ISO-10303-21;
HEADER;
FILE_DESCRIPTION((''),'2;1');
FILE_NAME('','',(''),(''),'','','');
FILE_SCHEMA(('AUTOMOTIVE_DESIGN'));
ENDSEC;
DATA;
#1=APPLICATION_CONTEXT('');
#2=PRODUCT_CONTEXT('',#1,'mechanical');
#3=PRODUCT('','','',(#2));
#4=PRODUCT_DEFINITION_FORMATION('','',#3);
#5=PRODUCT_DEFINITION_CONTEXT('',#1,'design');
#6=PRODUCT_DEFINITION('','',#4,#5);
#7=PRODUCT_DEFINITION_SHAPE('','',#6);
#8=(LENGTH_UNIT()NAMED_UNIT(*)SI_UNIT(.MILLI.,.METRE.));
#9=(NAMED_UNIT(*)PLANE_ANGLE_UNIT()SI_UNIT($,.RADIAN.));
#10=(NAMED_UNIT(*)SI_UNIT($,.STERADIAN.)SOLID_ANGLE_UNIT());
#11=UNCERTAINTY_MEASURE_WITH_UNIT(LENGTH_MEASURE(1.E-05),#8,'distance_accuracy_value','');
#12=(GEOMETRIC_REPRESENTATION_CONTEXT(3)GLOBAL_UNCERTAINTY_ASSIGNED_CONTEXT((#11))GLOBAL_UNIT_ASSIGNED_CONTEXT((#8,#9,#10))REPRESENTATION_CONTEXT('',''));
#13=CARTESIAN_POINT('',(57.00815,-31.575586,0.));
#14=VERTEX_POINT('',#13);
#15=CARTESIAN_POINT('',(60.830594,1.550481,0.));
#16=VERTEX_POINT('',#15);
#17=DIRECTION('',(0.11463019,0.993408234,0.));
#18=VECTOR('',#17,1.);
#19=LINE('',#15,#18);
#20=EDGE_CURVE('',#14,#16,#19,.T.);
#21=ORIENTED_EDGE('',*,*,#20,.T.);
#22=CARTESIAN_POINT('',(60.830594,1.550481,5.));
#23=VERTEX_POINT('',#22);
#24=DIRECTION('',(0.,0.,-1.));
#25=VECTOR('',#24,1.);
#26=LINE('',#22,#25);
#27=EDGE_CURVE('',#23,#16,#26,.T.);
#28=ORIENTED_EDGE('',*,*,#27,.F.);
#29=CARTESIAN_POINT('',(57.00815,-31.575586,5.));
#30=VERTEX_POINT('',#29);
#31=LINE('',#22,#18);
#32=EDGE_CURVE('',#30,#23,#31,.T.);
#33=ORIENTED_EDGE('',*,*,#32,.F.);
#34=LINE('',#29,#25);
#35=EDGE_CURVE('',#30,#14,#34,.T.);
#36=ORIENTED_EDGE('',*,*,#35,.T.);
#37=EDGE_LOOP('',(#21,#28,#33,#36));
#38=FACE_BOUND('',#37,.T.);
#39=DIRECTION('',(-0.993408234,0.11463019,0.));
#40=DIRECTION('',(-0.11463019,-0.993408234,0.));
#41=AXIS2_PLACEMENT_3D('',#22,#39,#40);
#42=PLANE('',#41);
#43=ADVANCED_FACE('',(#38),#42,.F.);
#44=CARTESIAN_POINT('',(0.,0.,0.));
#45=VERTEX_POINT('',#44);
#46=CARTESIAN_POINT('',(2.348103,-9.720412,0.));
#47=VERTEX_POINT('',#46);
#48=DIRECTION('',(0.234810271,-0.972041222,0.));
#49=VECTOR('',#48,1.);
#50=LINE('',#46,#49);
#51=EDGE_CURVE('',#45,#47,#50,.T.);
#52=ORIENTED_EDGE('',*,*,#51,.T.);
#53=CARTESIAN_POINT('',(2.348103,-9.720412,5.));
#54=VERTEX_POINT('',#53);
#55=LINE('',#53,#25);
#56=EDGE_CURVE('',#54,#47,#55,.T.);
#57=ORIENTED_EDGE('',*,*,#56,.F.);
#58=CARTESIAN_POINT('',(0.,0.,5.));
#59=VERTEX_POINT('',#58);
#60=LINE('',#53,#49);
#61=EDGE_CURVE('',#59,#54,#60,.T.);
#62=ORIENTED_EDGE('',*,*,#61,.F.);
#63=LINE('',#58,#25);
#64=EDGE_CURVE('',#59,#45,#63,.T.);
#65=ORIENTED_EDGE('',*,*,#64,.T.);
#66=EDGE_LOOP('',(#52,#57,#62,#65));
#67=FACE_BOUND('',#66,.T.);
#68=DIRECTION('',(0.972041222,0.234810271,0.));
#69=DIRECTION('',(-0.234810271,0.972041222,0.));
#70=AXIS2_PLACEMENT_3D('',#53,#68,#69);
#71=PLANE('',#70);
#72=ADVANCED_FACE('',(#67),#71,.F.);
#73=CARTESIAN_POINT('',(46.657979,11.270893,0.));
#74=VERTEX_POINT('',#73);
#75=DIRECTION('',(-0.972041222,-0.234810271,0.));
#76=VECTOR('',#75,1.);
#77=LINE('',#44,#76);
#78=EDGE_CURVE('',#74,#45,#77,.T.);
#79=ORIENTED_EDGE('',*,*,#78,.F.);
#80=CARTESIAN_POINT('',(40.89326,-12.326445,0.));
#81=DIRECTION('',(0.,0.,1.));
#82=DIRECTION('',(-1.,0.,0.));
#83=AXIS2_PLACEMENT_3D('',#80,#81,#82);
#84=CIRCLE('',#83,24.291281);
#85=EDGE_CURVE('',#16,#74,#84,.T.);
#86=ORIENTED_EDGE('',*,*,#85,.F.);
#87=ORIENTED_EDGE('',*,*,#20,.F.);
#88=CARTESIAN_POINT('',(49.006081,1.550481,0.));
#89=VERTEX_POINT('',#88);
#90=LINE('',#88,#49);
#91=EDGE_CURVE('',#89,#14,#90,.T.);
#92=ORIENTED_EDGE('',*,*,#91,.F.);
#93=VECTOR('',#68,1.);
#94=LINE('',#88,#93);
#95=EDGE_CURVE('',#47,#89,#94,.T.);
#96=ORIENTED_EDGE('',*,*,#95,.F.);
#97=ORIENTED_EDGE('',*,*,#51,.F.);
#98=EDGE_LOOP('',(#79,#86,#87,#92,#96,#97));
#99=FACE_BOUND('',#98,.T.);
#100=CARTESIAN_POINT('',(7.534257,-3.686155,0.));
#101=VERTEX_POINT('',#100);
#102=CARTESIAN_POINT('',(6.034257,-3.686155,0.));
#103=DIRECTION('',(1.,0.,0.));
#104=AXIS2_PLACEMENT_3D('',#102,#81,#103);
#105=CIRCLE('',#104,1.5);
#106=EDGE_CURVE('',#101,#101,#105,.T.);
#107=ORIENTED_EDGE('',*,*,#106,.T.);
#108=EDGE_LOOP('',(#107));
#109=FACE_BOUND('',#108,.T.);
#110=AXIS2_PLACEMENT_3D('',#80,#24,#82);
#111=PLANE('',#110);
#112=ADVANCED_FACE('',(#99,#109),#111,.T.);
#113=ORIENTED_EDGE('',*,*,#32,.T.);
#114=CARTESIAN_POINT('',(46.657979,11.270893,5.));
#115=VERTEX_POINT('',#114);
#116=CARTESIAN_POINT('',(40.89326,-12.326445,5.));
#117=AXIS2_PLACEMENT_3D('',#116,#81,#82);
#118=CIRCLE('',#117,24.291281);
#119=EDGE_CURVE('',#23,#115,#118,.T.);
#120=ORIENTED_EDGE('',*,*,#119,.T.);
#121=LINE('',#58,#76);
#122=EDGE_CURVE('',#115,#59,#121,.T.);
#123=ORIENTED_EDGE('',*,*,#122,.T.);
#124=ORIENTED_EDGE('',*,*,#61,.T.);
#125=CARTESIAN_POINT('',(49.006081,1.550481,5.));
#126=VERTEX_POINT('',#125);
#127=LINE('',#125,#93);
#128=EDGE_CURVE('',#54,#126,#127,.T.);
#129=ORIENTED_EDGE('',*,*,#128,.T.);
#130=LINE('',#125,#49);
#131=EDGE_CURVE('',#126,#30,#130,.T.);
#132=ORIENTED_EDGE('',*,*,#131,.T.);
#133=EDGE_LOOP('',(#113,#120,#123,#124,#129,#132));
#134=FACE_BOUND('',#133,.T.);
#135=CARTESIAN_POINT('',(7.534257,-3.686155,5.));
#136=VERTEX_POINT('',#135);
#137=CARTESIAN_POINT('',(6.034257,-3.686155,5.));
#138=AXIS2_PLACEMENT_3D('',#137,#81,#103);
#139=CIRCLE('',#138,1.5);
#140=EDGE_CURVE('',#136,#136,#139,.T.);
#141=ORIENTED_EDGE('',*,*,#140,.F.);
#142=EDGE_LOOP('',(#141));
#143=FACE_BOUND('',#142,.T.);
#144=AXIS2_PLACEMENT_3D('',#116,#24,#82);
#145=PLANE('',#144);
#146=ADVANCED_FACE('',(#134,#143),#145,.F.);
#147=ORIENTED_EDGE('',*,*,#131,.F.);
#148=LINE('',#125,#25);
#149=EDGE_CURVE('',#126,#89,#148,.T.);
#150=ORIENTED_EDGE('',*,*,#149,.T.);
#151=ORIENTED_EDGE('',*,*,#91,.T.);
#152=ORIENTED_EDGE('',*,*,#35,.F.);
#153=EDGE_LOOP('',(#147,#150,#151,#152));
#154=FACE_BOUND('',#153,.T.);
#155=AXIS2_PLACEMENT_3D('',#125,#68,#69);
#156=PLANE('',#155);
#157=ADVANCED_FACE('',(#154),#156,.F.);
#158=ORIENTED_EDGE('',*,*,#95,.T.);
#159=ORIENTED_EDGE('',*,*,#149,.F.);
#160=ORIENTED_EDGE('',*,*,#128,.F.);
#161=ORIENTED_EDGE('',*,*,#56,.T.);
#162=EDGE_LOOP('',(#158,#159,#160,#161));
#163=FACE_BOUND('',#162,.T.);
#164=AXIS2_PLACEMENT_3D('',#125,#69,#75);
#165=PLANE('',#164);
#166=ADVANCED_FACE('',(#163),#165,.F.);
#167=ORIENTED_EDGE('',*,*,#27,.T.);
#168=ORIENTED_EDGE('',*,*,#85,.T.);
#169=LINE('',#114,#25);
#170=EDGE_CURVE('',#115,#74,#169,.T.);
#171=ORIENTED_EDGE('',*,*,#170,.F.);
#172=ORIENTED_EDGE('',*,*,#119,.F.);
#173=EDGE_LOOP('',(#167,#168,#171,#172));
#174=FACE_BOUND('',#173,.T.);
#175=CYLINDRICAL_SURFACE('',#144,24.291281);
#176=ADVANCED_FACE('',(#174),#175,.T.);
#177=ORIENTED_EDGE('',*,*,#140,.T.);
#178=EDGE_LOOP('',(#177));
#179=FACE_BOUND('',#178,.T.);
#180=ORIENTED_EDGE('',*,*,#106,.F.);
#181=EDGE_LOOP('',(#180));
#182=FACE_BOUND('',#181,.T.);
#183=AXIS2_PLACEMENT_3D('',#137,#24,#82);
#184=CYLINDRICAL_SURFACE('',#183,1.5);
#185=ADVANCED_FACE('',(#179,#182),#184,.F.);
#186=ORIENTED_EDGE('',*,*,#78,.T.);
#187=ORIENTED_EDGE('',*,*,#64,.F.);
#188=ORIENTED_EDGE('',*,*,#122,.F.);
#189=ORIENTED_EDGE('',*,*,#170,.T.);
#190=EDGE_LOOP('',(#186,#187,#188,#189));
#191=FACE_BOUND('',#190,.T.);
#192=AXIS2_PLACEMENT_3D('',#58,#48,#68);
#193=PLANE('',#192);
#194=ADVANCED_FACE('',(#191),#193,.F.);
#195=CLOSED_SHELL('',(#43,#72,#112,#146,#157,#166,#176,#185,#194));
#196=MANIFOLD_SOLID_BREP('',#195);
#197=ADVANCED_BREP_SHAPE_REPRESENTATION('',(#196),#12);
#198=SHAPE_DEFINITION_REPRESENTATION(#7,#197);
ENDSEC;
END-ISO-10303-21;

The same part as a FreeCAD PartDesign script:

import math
import FreeCAD as App
import Part
import Sketcher
from FreeCAD import Vector

doc = App.newDocument("Part")
body = doc.addObject("PartDesign::Body", "Body")

sketch1 = body.newObject("Sketcher::SketchObject", "Sketch")
sketch1.AttachmentSupport = (doc.getObject("XY_Plane"), [""])
sketch1.MapMode = "FlatFace"
sketch1.addGeometry([
    Part.LineSegment(Vector(57.00815, -31.575586, 0), Vector(60.830594, 1.550481, 0)),
    Part.ArcOfCircle(Part.Circle(Vector(40.89326, -12.326445, 0), Vector(0, 0, 1), 24.291281), math.radians(34.838966), math.radians(76.271797)),
    Part.LineSegment(Vector(46.657979, 11.270893, 0), Vector(0, 0, 0)),
    Part.LineSegment(Vector(0, 0, 0), Vector(2.348103, -9.720412, 0)),
    Part.LineSegment(Vector(2.348103, -9.720412, 0), Vector(49.006081, 1.550481, 0)),
    Part.LineSegment(Vector(49.006081, 1.550481, 0), Vector(57.00815, -31.575586, 0)),
    Part.Circle(Vector(6.034257, -3.686155, 0), Vector(0, 0, 1), 1.5),
], False)
sketch1.addConstraint([
    Sketcher.Constraint("Coincident", 0, 2, 1, 1),
    Sketcher.Constraint("Coincident", 1, 2, 2, 1),
    Sketcher.Constraint("Coincident", 2, 2, 3, 1),
    Sketcher.Constraint("Coincident", 3, 2, 4, 1),
    Sketcher.Constraint("Coincident", 4, 2, 5, 1),
    Sketcher.Constraint("Coincident", 5, 2, 0, 1),
    Sketcher.Constraint("Coincident", 2, 2, -1, 1),
    Sketcher.Constraint("Perpendicular", 2, 3),
    Sketcher.Constraint("Perpendicular", 3, 4),
    Sketcher.Constraint("Perpendicular", 4, 5),
    Sketcher.Constraint("Horizontal", 0, 2, 4, 2),
    Sketcher.Constraint("Equal", 2, 4),
    Sketcher.Constraint("Diameter", 6, 3.0),
    Sketcher.Constraint("Distance", 2, 48.0),
    Sketcher.Constraint("Distance", 3, 10.0),
    Sketcher.Constraint("Radius", 1, 24.291281),
    Sketcher.Constraint("Distance", 5, 34.07887),
    Sketcher.Constraint("DistanceX", -1, 1, 1, 3, 40.89326),
    Sketcher.Constraint("DistanceY", -1, 1, 0, 2, 1.550481),
    Sketcher.Constraint("DistanceY", 1, 3, 6, 3, 8.640291),
    Sketcher.Constraint("DistanceX", 6, 3, 1, 2, 40.623721),
])
pad1 = body.newObject("PartDesign::Pad", "Pad")
pad1.Profile = sketch1
pad1.Length = 5

doc.recompute()
